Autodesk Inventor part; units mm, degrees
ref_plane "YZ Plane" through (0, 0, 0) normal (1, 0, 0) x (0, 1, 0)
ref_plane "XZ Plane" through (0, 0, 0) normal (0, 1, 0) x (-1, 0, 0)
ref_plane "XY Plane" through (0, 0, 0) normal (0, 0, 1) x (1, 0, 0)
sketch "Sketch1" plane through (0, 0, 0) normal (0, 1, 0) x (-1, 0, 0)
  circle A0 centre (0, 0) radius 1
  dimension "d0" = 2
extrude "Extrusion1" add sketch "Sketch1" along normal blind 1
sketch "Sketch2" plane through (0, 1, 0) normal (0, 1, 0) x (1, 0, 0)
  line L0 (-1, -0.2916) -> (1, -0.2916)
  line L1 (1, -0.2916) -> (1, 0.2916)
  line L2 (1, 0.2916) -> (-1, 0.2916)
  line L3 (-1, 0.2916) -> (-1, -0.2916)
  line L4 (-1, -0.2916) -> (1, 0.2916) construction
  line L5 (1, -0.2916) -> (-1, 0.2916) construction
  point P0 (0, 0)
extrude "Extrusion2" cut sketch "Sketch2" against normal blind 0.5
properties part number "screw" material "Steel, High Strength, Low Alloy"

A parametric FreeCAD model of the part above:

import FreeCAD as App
import Part
import Sketcher

V = App.Vector
Q = App.Units.Quantity

doc = App.newDocument("Part")
body = doc.addObject("PartDesign::Body", "Body")

# Sketch on XZ plane
sketch1 = body.newObject("Sketcher::SketchObject", "Sketch")
sketch1.AttachmentSupport = (doc.getObject("XZ_Plane"), [""])
sketch1.MapMode = "FlatFace"
sketch1.addGeometry(Part.Circle(V(0, 0, 0), V(0, 0, 1), 1), False)
sketch1.addConstraint(Sketcher.Constraint("Coincident", 0, 3, -1, 1))
sketch1.addConstraint(Sketcher.Constraint("Diameter", 0, Q("2 mm")))
pad1 = body.newObject("PartDesign::Pad", "Pad")
pad1.Profile = sketch1
pad1.Length = 1
pad1.Reversed = True

# Sketch on XZ plane
sketch2 = body.newObject("Sketcher::SketchObject", "Sketch001")
sketch2.AttachmentSupport = (doc.getObject("XZ_Plane"), [""])
sketch2.MapMode = "FlatFace"
sketch2.AttachmentOffset = App.Placement(V(0, 0, -1), App.Rotation())
sketch2.addGeometry(Part.LineSegment(V(-1, -0.2916, 0), V(-1, 0.2916, 0)), False)
sketch2.addGeometry(Part.LineSegment(V(-1, 0.2916, 0), V(1, 0.2916, 0)), False)
sketch2.addGeometry(Part.LineSegment(V(1, 0.2916, 0), V(1, -0.2916, 0)), False)
sketch2.addGeometry(Part.LineSegment(V(1, -0.2916, 0), V(-1, -0.2916, 0)), False)
sketch2.addConstraint(Sketcher.Constraint("Coincident", 0, 2, 1, 1))
sketch2.addConstraint(Sketcher.Constraint("Coincident", 1, 2, 2, 1))
sketch2.addConstraint(Sketcher.Constraint("Coincident", 2, 2, 3, 1))
sketch2.addConstraint(Sketcher.Constraint("Coincident", 3, 2, 0, 1))
sketch2.addConstraint(Sketcher.Constraint("Vertical", 0))
sketch2.addConstraint(Sketcher.Constraint("Horizontal", 1))
sketch2.addConstraint(Sketcher.Constraint("Vertical", 2))
sketch2.addConstraint(Sketcher.Constraint("Horizontal", 3))
sketch2.addConstraint(Sketcher.Constraint("Symmetric", 0, 2, 2, 2, -1, 1))
sketch2.addConstraint(Sketcher.Constraint("DistanceX", 1, 1, 1, 2, Q("2 mm")))
sketch2.addConstraint(Sketcher.Constraint("DistanceY", 0, 1, 0, 2, Q("0.5832 mm")))
pocket1 = body.newObject("PartDesign::Pocket", "Pocket")
pocket1.Profile = sketch2
pocket1.Length = 0.5
pocket1.Reversed = True

doc.recompute()
